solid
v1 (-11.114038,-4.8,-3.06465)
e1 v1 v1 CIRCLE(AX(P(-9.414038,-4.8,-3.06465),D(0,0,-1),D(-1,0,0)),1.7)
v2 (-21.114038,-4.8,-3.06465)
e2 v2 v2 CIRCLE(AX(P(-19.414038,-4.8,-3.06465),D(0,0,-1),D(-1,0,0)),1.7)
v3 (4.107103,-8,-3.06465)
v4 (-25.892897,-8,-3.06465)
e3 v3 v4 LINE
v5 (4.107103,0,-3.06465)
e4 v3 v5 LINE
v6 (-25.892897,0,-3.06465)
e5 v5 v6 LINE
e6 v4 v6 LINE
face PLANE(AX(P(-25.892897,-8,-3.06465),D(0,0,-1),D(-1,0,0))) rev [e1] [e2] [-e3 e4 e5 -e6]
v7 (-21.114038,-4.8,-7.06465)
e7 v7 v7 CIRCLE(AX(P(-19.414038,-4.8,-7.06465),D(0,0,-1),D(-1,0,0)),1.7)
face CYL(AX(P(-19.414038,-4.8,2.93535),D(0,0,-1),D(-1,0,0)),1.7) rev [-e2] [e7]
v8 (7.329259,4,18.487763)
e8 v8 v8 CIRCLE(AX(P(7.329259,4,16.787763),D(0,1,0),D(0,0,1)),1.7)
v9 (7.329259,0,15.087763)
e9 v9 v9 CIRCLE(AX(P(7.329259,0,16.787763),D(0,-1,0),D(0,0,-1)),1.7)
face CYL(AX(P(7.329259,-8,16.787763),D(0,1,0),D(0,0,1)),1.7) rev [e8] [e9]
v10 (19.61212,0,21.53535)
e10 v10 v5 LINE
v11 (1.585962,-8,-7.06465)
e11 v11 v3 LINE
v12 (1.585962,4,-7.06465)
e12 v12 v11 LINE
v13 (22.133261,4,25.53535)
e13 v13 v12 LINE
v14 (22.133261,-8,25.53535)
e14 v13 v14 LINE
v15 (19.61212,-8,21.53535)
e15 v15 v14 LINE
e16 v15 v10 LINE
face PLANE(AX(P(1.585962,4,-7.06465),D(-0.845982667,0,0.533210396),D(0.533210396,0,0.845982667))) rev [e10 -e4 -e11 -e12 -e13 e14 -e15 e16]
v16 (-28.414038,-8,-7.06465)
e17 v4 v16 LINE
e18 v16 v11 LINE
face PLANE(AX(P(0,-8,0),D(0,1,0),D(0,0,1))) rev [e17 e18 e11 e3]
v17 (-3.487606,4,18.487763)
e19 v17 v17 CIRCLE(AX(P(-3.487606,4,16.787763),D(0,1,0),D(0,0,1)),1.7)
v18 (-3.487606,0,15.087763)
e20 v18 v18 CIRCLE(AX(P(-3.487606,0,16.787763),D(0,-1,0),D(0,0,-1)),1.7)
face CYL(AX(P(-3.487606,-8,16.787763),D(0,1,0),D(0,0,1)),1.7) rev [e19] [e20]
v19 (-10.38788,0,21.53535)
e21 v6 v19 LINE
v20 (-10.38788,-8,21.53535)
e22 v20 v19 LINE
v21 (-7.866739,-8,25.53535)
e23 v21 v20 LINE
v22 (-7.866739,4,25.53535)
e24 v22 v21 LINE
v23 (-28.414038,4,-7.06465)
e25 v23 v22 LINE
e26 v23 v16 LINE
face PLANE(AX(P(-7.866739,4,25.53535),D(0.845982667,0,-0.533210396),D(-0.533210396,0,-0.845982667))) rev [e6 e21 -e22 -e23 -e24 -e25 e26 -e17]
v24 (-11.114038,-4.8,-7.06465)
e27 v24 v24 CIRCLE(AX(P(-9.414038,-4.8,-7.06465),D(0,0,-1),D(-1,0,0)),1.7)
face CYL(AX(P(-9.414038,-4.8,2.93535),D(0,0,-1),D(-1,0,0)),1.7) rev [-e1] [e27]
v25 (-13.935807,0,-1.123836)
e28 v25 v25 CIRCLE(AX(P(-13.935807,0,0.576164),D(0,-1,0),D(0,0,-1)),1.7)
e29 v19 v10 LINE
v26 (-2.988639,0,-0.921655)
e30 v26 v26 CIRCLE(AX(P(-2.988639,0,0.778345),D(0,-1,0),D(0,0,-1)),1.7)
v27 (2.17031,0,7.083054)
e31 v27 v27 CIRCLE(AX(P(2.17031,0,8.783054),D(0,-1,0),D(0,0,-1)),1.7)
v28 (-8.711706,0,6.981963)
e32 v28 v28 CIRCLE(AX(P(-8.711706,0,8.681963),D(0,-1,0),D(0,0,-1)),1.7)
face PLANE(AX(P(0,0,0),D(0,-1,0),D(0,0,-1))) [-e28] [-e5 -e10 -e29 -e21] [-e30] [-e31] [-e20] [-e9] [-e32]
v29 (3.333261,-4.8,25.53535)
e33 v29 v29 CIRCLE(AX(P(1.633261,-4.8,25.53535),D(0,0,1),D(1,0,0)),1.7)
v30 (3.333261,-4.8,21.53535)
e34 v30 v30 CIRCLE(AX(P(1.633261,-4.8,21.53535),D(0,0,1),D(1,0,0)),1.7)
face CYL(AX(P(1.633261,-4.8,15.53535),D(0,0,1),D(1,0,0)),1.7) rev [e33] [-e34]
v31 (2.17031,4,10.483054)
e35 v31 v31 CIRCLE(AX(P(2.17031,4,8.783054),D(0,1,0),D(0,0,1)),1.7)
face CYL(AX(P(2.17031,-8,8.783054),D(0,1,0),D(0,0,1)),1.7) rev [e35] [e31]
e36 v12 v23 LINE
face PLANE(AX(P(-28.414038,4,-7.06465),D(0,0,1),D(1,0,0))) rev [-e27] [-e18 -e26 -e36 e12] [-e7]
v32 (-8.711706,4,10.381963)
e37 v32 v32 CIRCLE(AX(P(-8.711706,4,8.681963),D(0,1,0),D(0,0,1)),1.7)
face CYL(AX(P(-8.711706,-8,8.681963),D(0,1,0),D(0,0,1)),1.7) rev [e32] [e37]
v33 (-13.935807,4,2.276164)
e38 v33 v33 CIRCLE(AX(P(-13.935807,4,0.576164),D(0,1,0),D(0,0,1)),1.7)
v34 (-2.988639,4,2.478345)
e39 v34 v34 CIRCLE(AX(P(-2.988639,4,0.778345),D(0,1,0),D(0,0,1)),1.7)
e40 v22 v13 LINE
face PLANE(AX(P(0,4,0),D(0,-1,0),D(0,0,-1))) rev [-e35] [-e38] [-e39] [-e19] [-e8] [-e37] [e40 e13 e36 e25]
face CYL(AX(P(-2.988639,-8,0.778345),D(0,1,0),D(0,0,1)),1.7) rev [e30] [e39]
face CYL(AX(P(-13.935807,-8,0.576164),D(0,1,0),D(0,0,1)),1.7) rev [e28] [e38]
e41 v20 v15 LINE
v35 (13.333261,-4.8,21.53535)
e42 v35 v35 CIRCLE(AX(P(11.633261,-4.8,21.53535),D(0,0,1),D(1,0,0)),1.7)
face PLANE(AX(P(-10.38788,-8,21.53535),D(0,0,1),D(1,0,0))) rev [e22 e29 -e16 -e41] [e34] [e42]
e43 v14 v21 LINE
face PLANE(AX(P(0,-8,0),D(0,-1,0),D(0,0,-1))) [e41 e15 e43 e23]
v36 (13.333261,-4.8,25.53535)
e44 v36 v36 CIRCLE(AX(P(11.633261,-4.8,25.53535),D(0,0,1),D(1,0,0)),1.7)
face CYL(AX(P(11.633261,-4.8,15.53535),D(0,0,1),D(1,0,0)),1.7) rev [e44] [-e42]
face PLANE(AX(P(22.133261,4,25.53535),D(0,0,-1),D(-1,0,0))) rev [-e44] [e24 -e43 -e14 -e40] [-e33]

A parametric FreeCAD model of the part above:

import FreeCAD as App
import Part
import Sketcher
Q = App.Units.Quantity


def add_polygon(sketch, points):
    """Adds a closed chain of lines whose ends are joined by coincident constraints."""
    first, n = sketch.GeometryCount, len(points)
    for a, b in zip(points, points[1:] + points[:1]):
        sketch.addGeometry(Part.LineSegment(App.Vector(*a, 0), App.Vector(*b, 0)), False)
    for i in range(n):
        sketch.addConstraint(Sketcher.Constraint("Coincident", first + i, 2, first + (i + 1) % n, 1))

doc = App.newDocument("Part")
body = doc.addObject("PartDesign::Body", "Body")

# Sketch on XZ plane
sketch1 = body.newObject("Sketcher::SketchObject", "Sketch")
sketch1.AttachmentSupport = (doc.getObject("XZ_Plane"), [""])
sketch1.MapMode = "FlatFace"
add_polygon(sketch1, [(22, 26), (2, -7), (-28, -7), (-8, 26)])  # lines 0-3
sketch1.addConstraint(Sketcher.Constraint("Horizontal", 1))
sketch1.addConstraint(Sketcher.Constraint("Horizontal", 3))
sketch1.addConstraint(Sketcher.Constraint("Parallel", 0, 2))
sketch1.addConstraint(Sketcher.Constraint("DistanceX", 1, 2, 1, 1, Q("30 mm")))
sketch1.addConstraint(Sketcher.Constraint("DistanceY", 0, 2, 2, 2, Q("32.6 mm")))
sketch1.addConstraint(Sketcher.Constraint("DistanceX", 2, 2, 0, 2, Q("9.452701 mm")))
sketch1.addConstraint(Sketcher.Constraint("DistanceX", -1, 1, 0, 2, Q("1.585962 mm")))
sketch1.addConstraint(Sketcher.Constraint("DistanceY", 0, 2, -1, 1, Q("7.06465 mm")))
pad1 = body.newObject("PartDesign::Pad", "Pad")
pad1.Profile = sketch1
pad1.Length = 4
pad1.Reversed = True

# Sketch on XZ plane
sketch2 = body.newObject("Sketcher::SketchObject", "Sketch001")
sketch2.AttachmentSupport = (doc.getObject("XZ_Plane"), [""])
sketch2.MapMode = "FlatFace"
add_polygon(sketch2, [(-25.9, -3.1), (-28.4, -7.1), (1.6, -7.1), (4.1, -3.1)])  # lines 0-3
add_polygon(sketch2, [(22.1, 25.5), (-7.9, 25.5), (-10.4, 21.5), (19.6, 21.5)])  # lines 4-7
sketch2.addConstraint(Sketcher.Constraint("Horizontal", 1))
sketch2.addConstraint(Sketcher.Constraint("Horizontal", 3))
sketch2.addConstraint(Sketcher.Constraint("Horizontal", 4))
sketch2.addConstraint(Sketcher.Constraint("Horizontal", 6))
sketch2.addConstraint(Sketcher.Constraint("Parallel", 0, 2))
sketch2.addConstraint(Sketcher.Constraint("Parallel", 2, 5))
sketch2.addConstraint(Sketcher.Constraint("Parallel", 5, 7))
sketch2.addConstraint(Sketcher.Constraint("Equal", 3, 4))
sketch2.addConstraint(Sketcher.Constraint("Equal", 2, 5))
sketch2.addConstraint(Sketcher.Constraint("DistanceX", 1, 1, 1, 2, Q("30 mm")))
sketch2.addConstraint(Sketcher.Constraint("DistanceY", 1, 2, 2, 2, Q("4 mm")))
sketch2.addConstraint(Sketcher.Constraint("DistanceY", 2, 2, 4, 2, Q("28.6 mm")))
sketch2.addConstraint(Sketcher.Constraint("DistanceX", 4, 2, 1, 2, Q("9.452701 mm")))
sketch2.addConstraint(Sketcher.Constraint("Distance", 0, Q("4.728229 mm")))
sketch2.addConstraint(Sketcher.Constraint("DistanceX", 0, 2, -1, 1, Q("28.414038 mm")))
sketch2.addConstraint(Sketcher.Constraint("DistanceY", 0, 2, -1, 1, Q("7.06465 mm")))
pad2 = body.newObject("PartDesign::Pad", "Pad001")
pad2.Profile = sketch2
pad2.Length = 8

# Sketch on XZ plane
sketch3 = body.newObject("Sketcher::SketchObject", "Sketch002")
sketch3.AttachmentSupport = (doc.getObject("XZ_Plane"), [""])
sketch3.MapMode = "FlatFace"
sketch3.AttachmentOffset = App.Placement(App.Vector(0, 0, -4), App.Rotation())
sketch3.addGeometry(Part.Circle(App.Vector(7.3, 16.8, 0), App.Vector(0, 0, 1), 1.7), False)
sketch3.addGeometry(Part.Circle(App.Vector(-3.5, 16.8, 0), App.Vector(0, 0, 1), 1.7), False)
sketch3.addGeometry(Part.Circle(App.Vector(-8.7, 8.7, 0), App.Vector(0, 0, 1), 1.7), False)
sketch3.addGeometry(Part.Circle(App.Vector(-13.9, 0.6, 0), App.Vector(0, 0, 1), 1.7), False)
sketch3.addGeometry(Part.Circle(App.Vector(-3, 0.8, 0), App.Vector(0, 0, 1), 1.7), False)
sketch3.addGeometry(Part.Circle(App.Vector(2.2, 8.8, 0), App.Vector(0, 0, 1), 1.7), False)
sketch3.addConstraint(Sketcher.Constraint("Equal", 0, 1))
sketch3.addConstraint(Sketcher.Constraint("Equal", 1, 2))
sketch3.addConstraint(Sketcher.Constraint("Equal", 2, 3))
sketch3.addConstraint(Sketcher.Constraint("Equal", 3, 4))
sketch3.addConstraint(Sketcher.Constraint("Equal", 4, 5))
sketch3.addConstraint(Sketcher.Constraint("Horizontal", 0, 3, 1, 3))
sketch3.addConstraint(Sketcher.Constraint("Diameter", 0, Q("3.4 mm")))
sketch3.addConstraint(Sketcher.Constraint("DistanceX", 2, 3, 1, 3, Q("5.224101 mm")))
sketch3.addConstraint(Sketcher.Constraint("DistanceY", 2, 3, 1, 3, Q("8.105799 mm")))
sketch3.addConstraint(Sketcher.Constraint("DistanceX", 3, 3, 2, 3, Q("5.224101 mm")))
sketch3.addConstraint(Sketcher.Constraint("DistanceY", 3, 3, 2, 3, Q("8.105799 mm")))
sketch3.addConstraint(Sketcher.Constraint("DistanceX", 4, 3, 0, 3, Q("10.317898 mm")))
sketch3.addConstraint(Sketcher.Constraint("DistanceX", -1, 1, 0, 3, Q("7.329259 mm")))
sketch3.addConstraint(Sketcher.Constraint("DistanceX", -1, 1, 5, 3, Q("2.17031 mm")))
sketch3.addConstraint(Sketcher.Constraint("DistanceY", 4, 3, 2, 3, Q("7.903618 mm")))
sketch3.addConstraint(Sketcher.Constraint("DistanceX", 3, 3, 4, 3, Q("10.947169 mm")))
sketch3.addConstraint(Sketcher.Constraint("DistanceY", 5, 3, 0, 3, Q("8.004709 mm")))
sketch3.addConstraint(Sketcher.Constraint("DistanceY", -1, 1, 0, 3, Q("16.787763 mm")))
pocket1 = body.newObject("PartDesign::Pocket", "Pocket")
pocket1.Profile = sketch3
pocket1.Type = "ThroughAll"
pocket1.Reversed = True

# Sketch on XY plane
sketch4 = body.newObject("Sketcher::SketchObject", "Sketch003")
sketch4.AttachmentSupport = (doc.getObject("XY_Plane"), [""])
sketch4.MapMode = "FlatFace"
sketch4.AttachmentOffset = App.Placement(App.Vector(0, 0, 25.53535), App.Rotation())
sketch4.addGeometry(Part.Circle(App.Vector(1.6, -4.8, 0), App.Vector(0, 0, 1), 1.7), False)
sketch4.addGeometry(Part.Circle(App.Vector(11.6, -4.8, 0), App.Vector(0, 0, 1), 1.7), False)
sketch4.addConstraint(Sketcher.Constraint("Equal", 0, 1))
sketch4.addConstraint(Sketcher.Constraint("Horizontal", 0, 3, 1, 3))
sketch4.addConstraint(Sketcher.Constraint("Diameter", 0, Q("3.4 mm")))
sketch4.addConstraint(Sketcher.Constraint("DistanceX", 0, 3, 1, 3, Q("10 mm")))
sketch4.addConstraint(Sketcher.Constraint("DistanceY", 0, 3, -1, 1, Q("4.8 mm")))
sketch4.addConstraint(Sketcher.Constraint("DistanceX", -1, 1, 0, 3, Q("1.633261 mm")))
pocket2 = body.newObject("PartDesign::Pocket", "Pocket001")
pocket2.Profile = sketch4
pocket2.Length = 10

# Sketch on XY plane
sketch5 = body.newObject("Sketcher::SketchObject", "Sketch004")
sketch5.AttachmentSupport = (doc.getObject("XY_Plane"), [""])
sketch5.MapMode = "FlatFace"
sketch5.AttachmentOffset = App.Placement(App.Vector(0, 0, -7.06465), App.Rotation())
sketch5.addGeometry(Part.Circle(App.Vector(-9.4, -4.8, 0), App.Vector(0, 0, 1), 1.7), False)
sketch5.addGeometry(Part.Circle(App.Vector(-19.4, -4.8, 0), App.Vector(0, 0, 1), 1.7), False)
sketch5.addConstraint(Sketcher.Constraint("Equal", 0, 1))
sketch5.addConstraint(Sketcher.Constraint("Horizontal", 0, 3, 1, 3))
sketch5.addConstraint(Sketcher.Constraint("Diameter", 0, Q("3.4 mm")))
sketch5.addConstraint(Sketcher.Constraint("DistanceX", 1, 3, 0, 3, Q("10 mm")))
sketch5.addConstraint(Sketcher.Constraint("DistanceY", 0, 3, -1, 1, Q("4.8 mm")))
sketch5.addConstraint(Sketcher.Constraint("DistanceX", 0, 3, -1, 1, Q("9.414038 mm")))
pocket3 = body.newObject("PartDesign::Pocket", "Pocket002")
pocket3.Profile = sketch5
pocket3.Length = 10
pocket3.Reversed = True

doc.recompute()
